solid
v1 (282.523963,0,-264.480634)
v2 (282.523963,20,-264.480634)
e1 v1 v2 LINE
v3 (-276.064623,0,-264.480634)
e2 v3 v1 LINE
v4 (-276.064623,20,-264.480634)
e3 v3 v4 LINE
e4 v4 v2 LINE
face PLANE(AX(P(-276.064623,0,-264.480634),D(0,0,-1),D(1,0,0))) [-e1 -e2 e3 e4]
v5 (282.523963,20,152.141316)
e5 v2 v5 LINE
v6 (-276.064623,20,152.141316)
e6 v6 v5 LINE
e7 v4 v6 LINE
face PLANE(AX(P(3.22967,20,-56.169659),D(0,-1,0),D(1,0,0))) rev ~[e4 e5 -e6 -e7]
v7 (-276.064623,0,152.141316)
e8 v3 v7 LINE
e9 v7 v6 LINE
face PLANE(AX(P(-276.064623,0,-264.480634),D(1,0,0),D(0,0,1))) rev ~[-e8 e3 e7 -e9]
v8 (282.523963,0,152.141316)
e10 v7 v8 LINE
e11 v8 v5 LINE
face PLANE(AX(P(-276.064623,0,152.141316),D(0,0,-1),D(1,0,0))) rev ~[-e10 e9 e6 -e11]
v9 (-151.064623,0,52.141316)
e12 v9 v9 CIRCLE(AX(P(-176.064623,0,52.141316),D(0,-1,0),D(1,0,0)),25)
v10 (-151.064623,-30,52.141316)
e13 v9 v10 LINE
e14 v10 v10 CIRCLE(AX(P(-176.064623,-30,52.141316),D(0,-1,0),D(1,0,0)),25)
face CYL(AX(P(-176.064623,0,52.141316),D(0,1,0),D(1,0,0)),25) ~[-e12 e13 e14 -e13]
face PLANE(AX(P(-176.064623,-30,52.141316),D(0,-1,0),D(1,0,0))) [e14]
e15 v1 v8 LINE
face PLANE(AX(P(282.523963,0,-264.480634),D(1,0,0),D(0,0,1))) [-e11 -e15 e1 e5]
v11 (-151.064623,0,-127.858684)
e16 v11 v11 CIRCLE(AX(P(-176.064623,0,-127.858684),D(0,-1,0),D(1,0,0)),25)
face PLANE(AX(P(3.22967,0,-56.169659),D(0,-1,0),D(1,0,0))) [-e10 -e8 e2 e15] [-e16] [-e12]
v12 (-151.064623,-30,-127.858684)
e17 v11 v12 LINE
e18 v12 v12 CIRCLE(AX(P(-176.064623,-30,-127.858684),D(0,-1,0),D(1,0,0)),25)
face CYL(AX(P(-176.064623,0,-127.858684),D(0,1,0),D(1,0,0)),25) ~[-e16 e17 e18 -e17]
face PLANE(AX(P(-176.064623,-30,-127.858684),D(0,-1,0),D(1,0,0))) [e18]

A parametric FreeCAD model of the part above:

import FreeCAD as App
import Part
import Sketcher

V = App.Vector


def add_polygon(sketch, points):
    """Adds a closed chain of lines whose ends are joined by coincident constraints."""
    first, n = sketch.GeometryCount, len(points)
    for a, b in zip(points, points[1:] + points[:1]):
        sketch.addGeometry(Part.LineSegment(App.Vector(*a, 0), App.Vector(*b, 0)), False)
    for i in range(n):
        sketch.addConstraint(Sketcher.Constraint("Coincident", first + i, 2, first + (i + 1) % n, 1))

doc = App.newDocument("Part")
body = doc.addObject("PartDesign::Body", "Body")

sketch1 = body.newObject("Sketcher::SketchObject", "Sketch")
sketch1.AttachmentSupport = (doc.getObject("XZ_Plane"), [""])
sketch1.MapMode = "FlatFace"
add_polygon(sketch1, [(-276, 152), (-276, -264), (283, -264), (283, 152)])
sketch1.addConstraint(Sketcher.Constraint("Vertical", 0))
sketch1.addConstraint(Sketcher.Constraint("Horizontal", 1))
sketch1.addConstraint(Sketcher.Constraint("Vertical", 2))
sketch1.addConstraint(Sketcher.Constraint("Horizontal", 3))
sketch1.addConstraint(Sketcher.Constraint("DistanceY", 0, 2, 0, 1, 416.62195))
sketch1.addConstraint(Sketcher.Constraint("DistanceX", 1, 1, 1, 2, 558.588586))
sketch1.addConstraint(Sketcher.Constraint("DistanceX", 0, 2, -1, 1, 276.064623))
sketch1.addConstraint(Sketcher.Constraint("DistanceY", 0, 2, -1, 1, 264.480634))
pad1 = body.newObject("PartDesign::Pad", "Pad")
pad1.Profile = sketch1
pad1.Length = 20
pad1.Reversed = True

sketch2 = body.newObject("Sketcher::SketchObject", "Sketch001")
sketch2.AttachmentSupport = (doc.getObject("XZ_Plane"), [""])
sketch2.MapMode = "FlatFace"
sketch2.addGeometry(Part.Circle(V(-176, 52, 0), V(0, 0, 1), 25), False)
sketch2.addGeometry(Part.Circle(V(-176, -128, 0), V(0, 0, 1), 25), False)
sketch2.addConstraint(Sketcher.Constraint("Equal", 0, 1))
sketch2.addConstraint(Sketcher.Constraint("Vertical", 0, 3, 1, 3))
sketch2.addConstraint(Sketcher.Constraint("Diameter", 0, 50.0))
sketch2.addConstraint(Sketcher.Constraint("DistanceY", 1, 3, 0, 3, 180.0))
sketch2.addConstraint(Sketcher.Constraint("DistanceX", 0, 3, -1, 1, 176.064623))
sketch2.addConstraint(Sketcher.Constraint("DistanceY", -1, 1, 0, 3, 52.141316))
pad2 = body.newObject("PartDesign::Pad", "Pad001")
pad2.Profile = sketch2
pad2.Length = 30

doc.recompute()
